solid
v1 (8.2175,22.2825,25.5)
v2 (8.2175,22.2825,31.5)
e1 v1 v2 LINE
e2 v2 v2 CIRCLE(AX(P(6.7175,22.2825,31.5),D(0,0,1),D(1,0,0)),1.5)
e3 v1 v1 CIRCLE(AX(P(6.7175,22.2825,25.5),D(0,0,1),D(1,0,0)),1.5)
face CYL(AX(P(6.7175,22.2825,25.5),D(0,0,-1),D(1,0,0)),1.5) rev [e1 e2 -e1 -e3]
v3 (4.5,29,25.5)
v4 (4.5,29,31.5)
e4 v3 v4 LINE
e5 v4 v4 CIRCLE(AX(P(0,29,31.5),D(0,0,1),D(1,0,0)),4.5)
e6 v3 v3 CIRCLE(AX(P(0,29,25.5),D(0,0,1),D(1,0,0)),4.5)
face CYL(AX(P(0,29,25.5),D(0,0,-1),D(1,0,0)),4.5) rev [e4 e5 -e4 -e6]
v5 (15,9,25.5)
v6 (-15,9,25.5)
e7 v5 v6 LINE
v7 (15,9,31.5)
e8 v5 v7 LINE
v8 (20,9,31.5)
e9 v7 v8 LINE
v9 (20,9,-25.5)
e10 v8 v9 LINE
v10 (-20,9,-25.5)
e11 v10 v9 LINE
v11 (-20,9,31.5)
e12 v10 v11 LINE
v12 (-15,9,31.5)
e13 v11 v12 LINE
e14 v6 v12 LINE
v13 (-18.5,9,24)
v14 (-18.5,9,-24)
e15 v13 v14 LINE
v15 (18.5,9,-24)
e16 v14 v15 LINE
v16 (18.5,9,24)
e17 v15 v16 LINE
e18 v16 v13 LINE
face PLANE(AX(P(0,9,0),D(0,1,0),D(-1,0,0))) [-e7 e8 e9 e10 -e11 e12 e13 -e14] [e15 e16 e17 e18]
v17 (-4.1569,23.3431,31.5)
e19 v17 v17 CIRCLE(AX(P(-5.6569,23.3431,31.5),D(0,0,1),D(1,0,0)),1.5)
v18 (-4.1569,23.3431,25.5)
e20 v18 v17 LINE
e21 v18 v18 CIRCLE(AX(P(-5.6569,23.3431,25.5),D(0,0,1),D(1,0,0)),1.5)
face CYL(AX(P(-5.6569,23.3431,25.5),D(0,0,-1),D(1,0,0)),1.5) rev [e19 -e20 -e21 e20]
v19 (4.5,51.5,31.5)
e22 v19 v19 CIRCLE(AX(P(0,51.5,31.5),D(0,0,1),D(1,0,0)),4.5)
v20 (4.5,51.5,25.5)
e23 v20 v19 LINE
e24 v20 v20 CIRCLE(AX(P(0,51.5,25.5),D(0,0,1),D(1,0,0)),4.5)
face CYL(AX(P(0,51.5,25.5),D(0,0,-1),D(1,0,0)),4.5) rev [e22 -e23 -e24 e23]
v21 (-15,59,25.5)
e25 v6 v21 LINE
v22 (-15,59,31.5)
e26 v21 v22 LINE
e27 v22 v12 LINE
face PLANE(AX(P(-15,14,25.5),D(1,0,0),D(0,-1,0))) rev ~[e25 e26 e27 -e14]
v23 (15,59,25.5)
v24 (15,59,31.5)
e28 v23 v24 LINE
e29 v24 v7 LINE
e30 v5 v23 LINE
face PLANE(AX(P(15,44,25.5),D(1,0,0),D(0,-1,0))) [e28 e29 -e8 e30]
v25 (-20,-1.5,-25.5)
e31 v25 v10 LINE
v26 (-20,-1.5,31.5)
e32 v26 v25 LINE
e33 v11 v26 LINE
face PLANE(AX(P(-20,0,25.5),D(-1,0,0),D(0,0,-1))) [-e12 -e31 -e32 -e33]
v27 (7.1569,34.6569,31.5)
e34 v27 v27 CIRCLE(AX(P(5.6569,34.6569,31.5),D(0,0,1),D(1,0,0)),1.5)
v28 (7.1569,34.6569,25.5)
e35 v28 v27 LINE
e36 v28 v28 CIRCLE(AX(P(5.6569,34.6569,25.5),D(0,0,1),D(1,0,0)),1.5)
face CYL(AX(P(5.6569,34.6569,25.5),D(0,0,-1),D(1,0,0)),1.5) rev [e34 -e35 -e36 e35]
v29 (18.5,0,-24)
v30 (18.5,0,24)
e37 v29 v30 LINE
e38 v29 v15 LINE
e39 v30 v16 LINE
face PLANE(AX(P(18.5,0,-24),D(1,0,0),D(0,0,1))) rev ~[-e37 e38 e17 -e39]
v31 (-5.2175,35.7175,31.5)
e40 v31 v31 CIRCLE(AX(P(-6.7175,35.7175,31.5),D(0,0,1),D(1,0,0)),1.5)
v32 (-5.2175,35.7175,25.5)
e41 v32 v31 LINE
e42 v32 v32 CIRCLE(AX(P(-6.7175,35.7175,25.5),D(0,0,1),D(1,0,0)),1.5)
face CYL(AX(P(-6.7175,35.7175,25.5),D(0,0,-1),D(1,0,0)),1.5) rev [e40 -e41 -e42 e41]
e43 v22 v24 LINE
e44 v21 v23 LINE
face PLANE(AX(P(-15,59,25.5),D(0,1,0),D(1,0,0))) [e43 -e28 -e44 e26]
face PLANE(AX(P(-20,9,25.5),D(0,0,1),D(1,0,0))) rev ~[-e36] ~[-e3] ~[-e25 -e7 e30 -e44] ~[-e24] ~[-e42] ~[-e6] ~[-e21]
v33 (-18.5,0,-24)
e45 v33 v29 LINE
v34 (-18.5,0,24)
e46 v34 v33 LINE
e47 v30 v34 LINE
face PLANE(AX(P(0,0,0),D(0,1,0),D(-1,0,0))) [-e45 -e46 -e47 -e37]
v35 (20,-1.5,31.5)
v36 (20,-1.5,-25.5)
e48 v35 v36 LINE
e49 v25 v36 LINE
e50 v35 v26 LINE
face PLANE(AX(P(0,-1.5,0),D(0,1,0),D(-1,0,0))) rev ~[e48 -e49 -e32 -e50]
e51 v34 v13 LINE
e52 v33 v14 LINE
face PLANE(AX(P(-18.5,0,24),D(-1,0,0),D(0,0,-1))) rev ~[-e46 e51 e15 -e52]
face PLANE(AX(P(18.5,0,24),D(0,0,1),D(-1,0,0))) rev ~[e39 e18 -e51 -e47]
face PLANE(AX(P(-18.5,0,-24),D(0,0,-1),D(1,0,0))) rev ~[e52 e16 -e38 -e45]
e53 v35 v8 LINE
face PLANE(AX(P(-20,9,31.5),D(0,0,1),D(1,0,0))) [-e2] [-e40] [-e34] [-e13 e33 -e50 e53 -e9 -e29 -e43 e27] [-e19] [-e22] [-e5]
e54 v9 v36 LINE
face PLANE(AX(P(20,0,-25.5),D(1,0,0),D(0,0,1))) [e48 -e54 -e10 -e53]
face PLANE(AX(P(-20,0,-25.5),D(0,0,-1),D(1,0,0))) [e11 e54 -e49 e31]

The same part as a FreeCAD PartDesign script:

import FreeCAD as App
import Part
import Sketcher
from FreeCAD import Vector

doc = App.newDocument("Part")
body = doc.addObject("PartDesign::Body", "Body")

# Sketch on XZ plane
sketch1 = doc.addObject("Sketcher::SketchObject", "Sketch")
body.addObject(sketch1)
sketch1.AttachmentSupport = (doc.XZ_Plane, [""])
sketch1.MapMode = "FlatFace"
sketch1.addGeometry([
    Part.LineSegment(Vector(20, -25.5, 0), Vector(-20, -25.5, 0)),  # 0
    Part.LineSegment(Vector(-20, -25.5, 0), Vector(-20, 25.5, 0)),  # 1
    Part.LineSegment(Vector(-20, 25.5, 0), Vector(20, 25.5, 0)),  # 2
    Part.LineSegment(Vector(20, 25.5, 0), Vector(20, -25.5, 0)),  # 3
    Part.LineSegment(Vector(-18.5, 24, 0), Vector(-18.5, -24, 0)),  # 4
    Part.LineSegment(Vector(-18.5, -24, 0), Vector(18.5, -24, 0)),  # 5
    Part.LineSegment(Vector(18.5, -24, 0), Vector(18.5, 24, 0)),  # 6
    Part.LineSegment(Vector(18.5, 24, 0), Vector(-18.5, 24, 0)),  # 7
], False)
sketch1.addConstraint([
    Sketcher.Constraint("Coincident", 0, 2, 1, 1),
    Sketcher.Constraint("Coincident", 1, 2, 2, 1),
    Sketcher.Constraint("Coincident", 2, 2, 3, 1),
    Sketcher.Constraint("Coincident", 3, 2, 0, 1),
    Sketcher.Constraint("Coincident", 4, 2, 5, 1),
    Sketcher.Constraint("Coincident", 5, 2, 6, 1),
    Sketcher.Constraint("Coincident", 6, 2, 7, 1),
    Sketcher.Constraint("Coincident", 7, 2, 4, 1),
    Sketcher.Constraint("Horizontal", 0),
    Sketcher.Constraint("Vertical", 1),
    Sketcher.Constraint("Horizontal", 2),
    Sketcher.Constraint("Vertical", 3),
    Sketcher.Constraint("Vertical", 4),
    Sketcher.Constraint("Horizontal", 5),
    Sketcher.Constraint("Vertical", 6),
    Sketcher.Constraint("Horizontal", 7),
    Sketcher.Constraint("Symmetric", 0, 2, 2, 2, -1, 1),
    Sketcher.Constraint("Symmetric", 4, 2, 6, 2, -1, 1),
    Sketcher.Constraint("DistanceX", 5, 1, 5, 2, 37.0),
    Sketcher.Constraint("DistanceY", 4, 2, 4, 1, 48.0),
    Sketcher.Constraint("DistanceX", 0, 2, 4, 2, 1.5),
    Sketcher.Constraint("DistanceY", 0, 2, 4, 2, 1.5),
])
pad1 = doc.addObject("PartDesign::Pad", "Pad")
body.addObject(pad1)
pad1.Profile = sketch1
pad1.Length = 9
pad1.Reversed = True

# Sketch on XZ plane
sketch2 = doc.addObject("Sketcher::SketchObject", "Sketch001")
body.addObject(sketch2)
sketch2.AttachmentSupport = (doc.XZ_Plane, [""])
sketch2.MapMode = "FlatFace"
sketch2.addGeometry([
    Part.LineSegment(Vector(20, -25.5, 0), Vector(-20, -25.5, 0)),
    Part.LineSegment(Vector(-20, -25.5, 0), Vector(-20, 25.5, 0)),
    Part.LineSegment(Vector(-20, 25.5, 0), Vector(20, 25.5, 0)),
    Part.LineSegment(Vector(20, 25.5, 0), Vector(20, -25.5, 0)),
], False)
sketch2.addConstraint([
    Sketcher.Constraint("Coincident", 0, 2, 1, 1),
    Sketcher.Constraint("Coincident", 1, 2, 2, 1),
    Sketcher.Constraint("Coincident", 2, 2, 3, 1),
    Sketcher.Constraint("Coincident", 3, 2, 0, 1),
    Sketcher.Constraint("Horizontal", 0),
    Sketcher.Constraint("Vertical", 1),
    Sketcher.Constraint("Horizontal", 2),
    Sketcher.Constraint("Vertical", 3),
    Sketcher.Constraint("Symmetric", 0, 2, 2, 2, -1, 1),
    Sketcher.Constraint("DistanceX", 0, 2, 0, 1, 40.0),
    Sketcher.Constraint("DistanceY", 1, 1, 1, 2, 51.0),
])
pad2 = doc.addObject("PartDesign::Pad", "Pad001")
body.addObject(pad2)
pad2.Profile = sketch2
pad2.Length = 1.5

# Sketch on XY plane
sketch3 = doc.addObject("Sketcher::SketchObject", "Sketch002")
body.addObject(sketch3)
sketch3.AttachmentSupport = (doc.XY_Plane, [""])
sketch3.MapMode = "FlatFace"
sketch3.AttachmentOffset = App.Placement(Vector(0, 0, 25.5), App.Rotation())
sketch3.addGeometry([
    Part.LineSegment(Vector(15, 59, 0), Vector(-15, 59, 0)),  # 0
    Part.LineSegment(Vector(-15, 59, 0), Vector(-15, 9, 0)),  # 1
    Part.LineSegment(Vector(-15, 9, 0), Vector(-20, 9, 0)),  # 2
    Part.LineSegment(Vector(-20, 9, 0), Vector(-20, -1.5, 0)),  # 3
    Part.LineSegment(Vector(-20, -1.5, 0), Vector(20, -1.5, 0)),  # 4
    Part.LineSegment(Vector(20, -1.5, 0), Vector(20, 9, 0)),  # 5
    Part.LineSegment(Vector(20, 9, 0), Vector(15, 9, 0)),  # 6
    Part.LineSegment(Vector(15, 9, 0), Vector(15, 59, 0)),  # 7
    Part.Circle(Vector(-5.6569, 23.3431, 0), Vector(0, 0, 1), 1.5),  # 8
    Part.Circle(Vector(6.7175, 22.2825, 0), Vector(0, 0, 1), 1.5),  # 9
    Part.Circle(Vector(-6.7175, 35.7175, 0), Vector(0, 0, 1), 1.5),  # 10
    Part.Circle(Vector(0, 29, 0), Vector(0, 0, 1), 4.5),  # 11
    Part.Circle(Vector(5.6569, 34.6569, 0), Vector(0, 0, 1), 1.5),  # 12
    Part.Circle(Vector(0, 51.5, 0), Vector(0, 0, 1), 4.5),  # 13
], False)
sketch3.addConstraint([
    Sketcher.Constraint("Coincident", 0, 2, 1, 1),
    Sketcher.Constraint("Coincident", 1, 2, 2, 1),
    Sketcher.Constraint("Coincident", 2, 2, 3, 1),
    Sketcher.Constraint("Coincident", 3, 2, 4, 1),
    Sketcher.Constraint("Coincident", 4, 2, 5, 1),
    Sketcher.Constraint("Coincident", 5, 2, 6, 1),
    Sketcher.Constraint("Coincident", 6, 2, 7, 1),
    Sketcher.Constraint("Coincident", 7, 2, 0, 1),
    Sketcher.Constraint("Horizontal", 0),
    Sketcher.Constraint("Vertical", 1),
    Sketcher.Constraint("Horizontal", 2),
    Sketcher.Constraint("Vertical", 3),
    Sketcher.Constraint("Horizontal", 4),
    Sketcher.Constraint("Vertical", 5),
    Sketcher.Constraint("Horizontal", 6),
    Sketcher.Constraint("Vertical", 7),
    Sketcher.Constraint("Equal", 8, 9),
    Sketcher.Constraint("Equal", 9, 10),
    Sketcher.Constraint("Equal", 10, 12),
    Sketcher.Constraint("Equal", 11, 13),
    Sketcher.Constraint("Symmetric", 2, 2, 5, 2, -2),
    Sketcher.Constraint("PointOnObject", 11, 3, -2),
    Sketcher.Constraint("PointOnObject", 13, 3, -2),
    Sketcher.Constraint("Equal", 2, 6),
    Sketcher.Constraint("Diameter", 8, 3.0),
    Sketcher.Constraint("Diameter", 11, 9.0),
    Sketcher.Constraint("DistanceX", 0, 2, 0, 1, 30.0),
    Sketcher.Constraint("DistanceX", 2, 2, 2, 1, 5.0),
    Sketcher.Constraint("DistanceY", -1, 1, 1, 2, 9.0),
    Sketcher.Constraint("DistanceY", 11, 3, 0, 2, 30.0),
    Sketcher.Constraint("DistanceY", 13, 3, 0, 2, 7.5),
    Sketcher.Constraint("DistanceY", 1, 2, 1, 1, 50.0),
    Sketcher.Constraint("DistanceY", 3, 2, 3, 1, 10.5),
    Sketcher.Constraint("DistanceX", 8, 3, -1, 1, 5.657),
    Sketcher.Constraint("DistanceY", -1, 1, 8, 3, 23.343),
    Sketcher.Constraint("DistanceX", -1, 1, 12, 3, 5.657),
    Sketcher.Constraint("DistanceY", -1, 1, 12, 3, 34.657),
    Sketcher.Constraint("DistanceX", 10, 3, 9, 3, 13.435),
    Sketcher.Constraint("DistanceY", 9, 3, 10, 3, 13.435),
    Sketcher.Constraint("DistanceX", -1, 1, 9, 3, 6.7175),
    Sketcher.Constraint("DistanceY", -1, 1, 9, 3, 22.2825),
])
pad3 = doc.addObject("PartDesign::Pad", "Pad002")
body.addObject(pad3)
pad3.Profile = sketch3
pad3.Length = 6

doc.recompute()
